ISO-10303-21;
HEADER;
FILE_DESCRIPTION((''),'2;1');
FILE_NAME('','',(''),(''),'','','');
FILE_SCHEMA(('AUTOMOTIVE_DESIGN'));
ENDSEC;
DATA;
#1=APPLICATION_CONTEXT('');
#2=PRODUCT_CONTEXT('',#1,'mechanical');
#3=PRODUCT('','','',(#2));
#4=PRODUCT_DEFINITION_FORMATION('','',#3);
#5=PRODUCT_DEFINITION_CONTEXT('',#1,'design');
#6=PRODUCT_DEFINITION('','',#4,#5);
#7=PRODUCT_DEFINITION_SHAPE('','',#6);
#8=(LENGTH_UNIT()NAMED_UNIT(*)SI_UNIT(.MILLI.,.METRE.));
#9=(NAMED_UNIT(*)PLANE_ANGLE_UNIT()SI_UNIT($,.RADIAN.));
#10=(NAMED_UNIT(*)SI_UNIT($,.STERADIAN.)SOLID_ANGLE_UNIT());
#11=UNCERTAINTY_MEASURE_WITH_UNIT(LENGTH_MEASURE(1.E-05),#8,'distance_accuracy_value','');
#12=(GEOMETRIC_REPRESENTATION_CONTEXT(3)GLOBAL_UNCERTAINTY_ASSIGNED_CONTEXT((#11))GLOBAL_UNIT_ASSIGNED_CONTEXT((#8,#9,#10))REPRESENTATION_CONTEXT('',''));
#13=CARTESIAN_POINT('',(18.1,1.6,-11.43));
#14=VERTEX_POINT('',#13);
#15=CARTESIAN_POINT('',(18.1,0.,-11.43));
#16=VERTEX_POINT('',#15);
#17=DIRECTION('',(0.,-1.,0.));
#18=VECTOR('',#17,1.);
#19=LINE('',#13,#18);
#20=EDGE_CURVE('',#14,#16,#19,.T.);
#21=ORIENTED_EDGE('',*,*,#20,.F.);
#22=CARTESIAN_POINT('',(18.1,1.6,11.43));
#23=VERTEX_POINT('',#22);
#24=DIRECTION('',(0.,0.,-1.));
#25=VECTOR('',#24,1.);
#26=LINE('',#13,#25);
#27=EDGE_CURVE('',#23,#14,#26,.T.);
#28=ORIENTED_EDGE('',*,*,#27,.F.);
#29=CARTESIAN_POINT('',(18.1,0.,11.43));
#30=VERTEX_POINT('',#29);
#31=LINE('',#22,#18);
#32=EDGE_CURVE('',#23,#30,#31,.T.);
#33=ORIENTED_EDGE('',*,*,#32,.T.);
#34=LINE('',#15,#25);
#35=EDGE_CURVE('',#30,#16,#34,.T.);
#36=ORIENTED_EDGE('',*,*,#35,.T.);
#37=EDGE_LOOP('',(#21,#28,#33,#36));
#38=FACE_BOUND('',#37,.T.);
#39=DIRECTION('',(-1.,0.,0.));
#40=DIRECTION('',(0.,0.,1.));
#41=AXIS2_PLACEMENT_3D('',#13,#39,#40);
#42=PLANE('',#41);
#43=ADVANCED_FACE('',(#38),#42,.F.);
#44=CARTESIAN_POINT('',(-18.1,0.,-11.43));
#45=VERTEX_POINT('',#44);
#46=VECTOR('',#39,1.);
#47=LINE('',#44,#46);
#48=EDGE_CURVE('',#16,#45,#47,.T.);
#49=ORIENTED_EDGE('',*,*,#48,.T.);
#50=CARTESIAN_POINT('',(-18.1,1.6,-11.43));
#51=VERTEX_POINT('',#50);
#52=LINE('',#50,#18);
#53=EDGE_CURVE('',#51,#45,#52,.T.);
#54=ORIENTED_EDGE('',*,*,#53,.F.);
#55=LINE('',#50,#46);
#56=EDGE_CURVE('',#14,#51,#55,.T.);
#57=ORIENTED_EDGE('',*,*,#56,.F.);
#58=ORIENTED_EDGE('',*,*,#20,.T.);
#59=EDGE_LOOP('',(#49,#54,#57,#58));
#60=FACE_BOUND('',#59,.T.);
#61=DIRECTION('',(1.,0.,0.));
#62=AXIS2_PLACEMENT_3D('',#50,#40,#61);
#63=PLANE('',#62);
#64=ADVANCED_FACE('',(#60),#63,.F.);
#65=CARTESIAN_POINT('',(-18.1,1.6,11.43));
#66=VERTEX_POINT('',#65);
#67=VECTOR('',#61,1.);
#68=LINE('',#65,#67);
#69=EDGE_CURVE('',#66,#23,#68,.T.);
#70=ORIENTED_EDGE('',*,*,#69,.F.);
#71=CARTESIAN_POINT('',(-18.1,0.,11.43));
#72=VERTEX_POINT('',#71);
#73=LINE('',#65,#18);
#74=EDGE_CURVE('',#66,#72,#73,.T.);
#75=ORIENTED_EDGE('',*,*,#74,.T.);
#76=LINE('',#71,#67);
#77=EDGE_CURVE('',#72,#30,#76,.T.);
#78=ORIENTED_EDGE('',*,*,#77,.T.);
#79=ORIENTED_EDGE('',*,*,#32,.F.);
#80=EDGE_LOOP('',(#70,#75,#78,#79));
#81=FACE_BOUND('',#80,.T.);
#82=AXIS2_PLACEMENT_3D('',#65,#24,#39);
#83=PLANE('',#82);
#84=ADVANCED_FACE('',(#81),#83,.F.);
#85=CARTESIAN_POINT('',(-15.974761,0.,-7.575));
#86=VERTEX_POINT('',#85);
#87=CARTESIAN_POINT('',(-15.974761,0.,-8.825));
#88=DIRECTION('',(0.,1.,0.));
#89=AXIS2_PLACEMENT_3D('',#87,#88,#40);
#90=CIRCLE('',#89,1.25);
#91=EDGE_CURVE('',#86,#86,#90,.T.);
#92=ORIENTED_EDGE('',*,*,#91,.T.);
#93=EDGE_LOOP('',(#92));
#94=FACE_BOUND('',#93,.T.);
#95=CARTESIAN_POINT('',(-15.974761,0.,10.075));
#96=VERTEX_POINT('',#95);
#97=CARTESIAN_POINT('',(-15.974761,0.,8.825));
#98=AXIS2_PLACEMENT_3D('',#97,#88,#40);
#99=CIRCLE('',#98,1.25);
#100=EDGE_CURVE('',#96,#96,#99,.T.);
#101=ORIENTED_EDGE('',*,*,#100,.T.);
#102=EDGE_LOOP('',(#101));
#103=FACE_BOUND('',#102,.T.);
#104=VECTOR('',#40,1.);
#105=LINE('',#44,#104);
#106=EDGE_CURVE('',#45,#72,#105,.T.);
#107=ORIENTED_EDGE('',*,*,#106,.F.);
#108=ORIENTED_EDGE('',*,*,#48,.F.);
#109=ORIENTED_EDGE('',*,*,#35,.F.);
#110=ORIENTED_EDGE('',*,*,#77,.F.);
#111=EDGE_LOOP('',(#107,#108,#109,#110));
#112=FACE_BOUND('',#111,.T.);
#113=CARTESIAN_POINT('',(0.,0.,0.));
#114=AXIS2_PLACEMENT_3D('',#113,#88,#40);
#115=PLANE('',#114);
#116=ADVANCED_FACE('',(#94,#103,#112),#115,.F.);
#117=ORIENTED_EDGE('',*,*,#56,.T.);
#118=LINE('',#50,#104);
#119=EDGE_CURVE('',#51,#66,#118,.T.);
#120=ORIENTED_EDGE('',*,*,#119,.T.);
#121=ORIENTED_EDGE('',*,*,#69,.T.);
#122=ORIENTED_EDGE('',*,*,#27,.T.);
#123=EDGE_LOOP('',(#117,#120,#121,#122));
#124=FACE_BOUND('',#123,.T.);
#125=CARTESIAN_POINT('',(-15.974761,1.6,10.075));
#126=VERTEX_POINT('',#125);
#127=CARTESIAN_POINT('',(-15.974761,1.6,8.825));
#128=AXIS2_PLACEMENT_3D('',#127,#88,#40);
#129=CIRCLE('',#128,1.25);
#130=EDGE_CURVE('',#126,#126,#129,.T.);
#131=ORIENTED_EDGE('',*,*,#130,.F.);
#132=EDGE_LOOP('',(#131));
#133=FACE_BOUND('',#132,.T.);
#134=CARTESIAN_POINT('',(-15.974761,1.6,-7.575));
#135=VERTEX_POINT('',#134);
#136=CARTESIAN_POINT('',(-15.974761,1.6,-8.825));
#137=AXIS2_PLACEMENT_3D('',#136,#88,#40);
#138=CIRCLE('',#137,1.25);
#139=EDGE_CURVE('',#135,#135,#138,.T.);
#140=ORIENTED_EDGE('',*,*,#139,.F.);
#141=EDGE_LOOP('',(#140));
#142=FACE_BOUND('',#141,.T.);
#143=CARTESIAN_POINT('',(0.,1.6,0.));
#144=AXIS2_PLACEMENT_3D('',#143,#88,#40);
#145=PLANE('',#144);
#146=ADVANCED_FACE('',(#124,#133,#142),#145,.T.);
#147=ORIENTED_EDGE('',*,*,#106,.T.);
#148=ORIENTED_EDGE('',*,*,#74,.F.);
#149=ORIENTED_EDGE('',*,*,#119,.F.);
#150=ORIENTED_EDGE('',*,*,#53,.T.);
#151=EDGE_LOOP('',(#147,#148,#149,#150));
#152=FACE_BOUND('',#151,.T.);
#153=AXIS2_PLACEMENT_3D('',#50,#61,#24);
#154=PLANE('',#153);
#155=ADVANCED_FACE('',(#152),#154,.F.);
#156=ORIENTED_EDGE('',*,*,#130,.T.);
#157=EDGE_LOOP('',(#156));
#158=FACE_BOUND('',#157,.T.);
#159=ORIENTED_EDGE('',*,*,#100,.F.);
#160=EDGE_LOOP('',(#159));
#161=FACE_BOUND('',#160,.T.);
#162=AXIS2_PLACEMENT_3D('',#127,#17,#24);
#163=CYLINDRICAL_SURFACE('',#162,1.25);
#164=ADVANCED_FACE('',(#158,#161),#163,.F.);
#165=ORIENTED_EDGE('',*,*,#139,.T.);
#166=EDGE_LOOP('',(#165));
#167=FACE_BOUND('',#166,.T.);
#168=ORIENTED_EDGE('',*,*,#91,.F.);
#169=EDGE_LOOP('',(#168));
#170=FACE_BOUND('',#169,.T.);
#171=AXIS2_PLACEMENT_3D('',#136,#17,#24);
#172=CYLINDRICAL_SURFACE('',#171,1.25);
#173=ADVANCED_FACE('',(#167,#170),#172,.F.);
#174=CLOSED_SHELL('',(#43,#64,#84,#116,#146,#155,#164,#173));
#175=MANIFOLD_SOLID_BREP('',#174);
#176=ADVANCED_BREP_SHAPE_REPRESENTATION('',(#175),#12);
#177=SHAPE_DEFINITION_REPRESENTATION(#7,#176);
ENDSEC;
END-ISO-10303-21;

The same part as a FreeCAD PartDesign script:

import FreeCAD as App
import Part
import Sketcher
from FreeCAD import Vector
Q = App.Units.Quantity

doc = App.newDocument("Part")
body = doc.addObject("PartDesign::Body", "Body")

# Sketch on XZ plane
sketch1 = body.newObject("Sketcher::SketchObject", "Sketch")
sketch1.AttachmentSupport = (doc.getObject("XZ_Plane"), [""])
sketch1.MapMode = "FlatFace"
sketch1.addGeometry([
    Part.LineSegment(Vector(-18.1, -11.4, 0), Vector(-18.1, 11.4, 0)),  # 0
    Part.LineSegment(Vector(-18.1, 11.4, 0), Vector(18.1, 11.4, 0)),  # 1
    Part.LineSegment(Vector(18.1, 11.4, 0), Vector(18.1, -11.4, 0)),  # 2
    Part.LineSegment(Vector(18.1, -11.4, 0), Vector(-18.1, -11.4, 0)),  # 3
    Part.Circle(Vector(-16, 8.8, 0), Vector(0, 0, 1), 1.2),  # 4
    Part.Circle(Vector(-16, -8.8, 0), Vector(0, 0, 1), 1.2),  # 5
], False)
sketch1.addConstraint([
    Sketcher.Constraint("Coincident", 0, 2, 1, 1),
    Sketcher.Constraint("Coincident", 1, 2, 2, 1),
    Sketcher.Constraint("Coincident", 2, 2, 3, 1),
    Sketcher.Constraint("Coincident", 3, 2, 0, 1),
    Sketcher.Constraint("Vertical", 0),
    Sketcher.Constraint("Horizontal", 1),
    Sketcher.Constraint("Vertical", 2),
    Sketcher.Constraint("Horizontal", 3),
    Sketcher.Constraint("Equal", 4, 5),
    Sketcher.Constraint("Symmetric", 0, 2, 2, 2, -1, 1),
    Sketcher.Constraint("Symmetric", 4, 3, 5, 3, -1),
    Sketcher.Constraint("Diameter", 4, Q("2.5 mm")),
    Sketcher.Constraint("DistanceX", 1, 1, 1, 2, Q("36.2 mm")),
    Sketcher.Constraint("DistanceY", 0, 1, 0, 2, Q("22.86 mm")),
    Sketcher.Constraint("DistanceY", 5, 3, 4, 3, Q("17.65 mm")),
    Sketcher.Constraint("DistanceX", 4, 3, -1, 1, Q("15.974761 mm")),
])
pad1 = body.newObject("PartDesign::Pad", "Pad")
pad1.Profile = sketch1
pad1.Length = 1.6
pad1.Reversed = True

doc.recompute()
